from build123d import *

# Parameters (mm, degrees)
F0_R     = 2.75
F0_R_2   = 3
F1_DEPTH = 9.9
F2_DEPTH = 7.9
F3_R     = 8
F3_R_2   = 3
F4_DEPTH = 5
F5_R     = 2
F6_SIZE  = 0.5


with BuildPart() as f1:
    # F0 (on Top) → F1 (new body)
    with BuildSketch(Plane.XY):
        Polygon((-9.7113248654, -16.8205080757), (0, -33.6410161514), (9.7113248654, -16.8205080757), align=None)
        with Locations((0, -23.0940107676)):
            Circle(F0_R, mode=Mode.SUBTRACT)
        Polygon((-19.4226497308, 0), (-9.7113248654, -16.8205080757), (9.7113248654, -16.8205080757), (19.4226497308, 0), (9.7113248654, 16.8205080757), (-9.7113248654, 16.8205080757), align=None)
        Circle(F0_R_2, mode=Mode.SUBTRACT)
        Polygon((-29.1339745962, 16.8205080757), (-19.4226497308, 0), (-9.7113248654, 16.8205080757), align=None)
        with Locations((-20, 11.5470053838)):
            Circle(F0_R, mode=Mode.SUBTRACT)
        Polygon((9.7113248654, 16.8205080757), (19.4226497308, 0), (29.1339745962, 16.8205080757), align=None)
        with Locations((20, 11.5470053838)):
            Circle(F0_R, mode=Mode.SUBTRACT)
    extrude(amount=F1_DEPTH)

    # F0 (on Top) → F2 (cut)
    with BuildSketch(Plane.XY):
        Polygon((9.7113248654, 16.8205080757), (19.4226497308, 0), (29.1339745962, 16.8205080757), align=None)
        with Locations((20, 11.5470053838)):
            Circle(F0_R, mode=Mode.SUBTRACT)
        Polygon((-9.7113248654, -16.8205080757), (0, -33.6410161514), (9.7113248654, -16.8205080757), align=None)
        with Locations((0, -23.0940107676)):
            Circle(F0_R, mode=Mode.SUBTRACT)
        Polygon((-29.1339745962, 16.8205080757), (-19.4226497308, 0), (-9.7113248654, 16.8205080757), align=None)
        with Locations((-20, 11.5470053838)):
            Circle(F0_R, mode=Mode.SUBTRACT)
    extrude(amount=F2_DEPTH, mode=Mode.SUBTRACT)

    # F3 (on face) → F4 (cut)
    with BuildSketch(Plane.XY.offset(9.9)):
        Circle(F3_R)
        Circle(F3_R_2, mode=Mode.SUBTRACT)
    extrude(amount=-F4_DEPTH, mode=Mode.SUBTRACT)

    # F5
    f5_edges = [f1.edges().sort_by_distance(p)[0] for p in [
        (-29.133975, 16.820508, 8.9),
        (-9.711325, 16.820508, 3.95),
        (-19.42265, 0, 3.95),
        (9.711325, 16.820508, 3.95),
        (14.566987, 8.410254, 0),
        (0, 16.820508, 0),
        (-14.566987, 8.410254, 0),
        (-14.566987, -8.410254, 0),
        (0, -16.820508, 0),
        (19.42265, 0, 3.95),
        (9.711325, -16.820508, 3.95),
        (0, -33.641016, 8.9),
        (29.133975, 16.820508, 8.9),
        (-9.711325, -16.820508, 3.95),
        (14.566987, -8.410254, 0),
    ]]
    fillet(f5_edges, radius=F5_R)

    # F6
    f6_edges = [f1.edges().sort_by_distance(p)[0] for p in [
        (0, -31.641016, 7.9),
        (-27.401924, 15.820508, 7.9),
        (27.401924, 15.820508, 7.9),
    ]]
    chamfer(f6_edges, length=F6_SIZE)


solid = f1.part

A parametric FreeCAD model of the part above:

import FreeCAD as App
import Part
import Sketcher

V = App.Vector
Q = App.Units.Quantity


def edges_at(feature, points):
    """Names of the edges that pass closest to the given points."""
    edges = feature.Shape.Edges
    near = lambda p: min(range(len(edges)), key=lambda i: edges[i].distToShape(Part.Vertex(*p))[0])
    return sorted({f"Edge{near(p) + 1}" for p in points})


def add_polygon(sketch, points):
    """Adds a closed chain of lines whose ends are joined by coincident constraints."""
    first, n = sketch.GeometryCount, len(points)
    for a, b in zip(points, points[1:] + points[:1]):
        sketch.addGeometry(Part.LineSegment(App.Vector(*a, 0), App.Vector(*b, 0)), False)
    for i in range(n):
        sketch.addConstraint(Sketcher.Constraint("Coincident", first + i, 2, first + (i + 1) % n, 1))

doc = App.newDocument("Part")
params = doc.addObject("Spreadsheet::Sheet", "Params")
for row, (alias, value) in enumerate([
    ("sketch1_diameter", "6 mm"),
    ("sketch1_diameter2", "5.5 mm"),
    ("pad1_length", "9.9 mm"),
    ("sketch2_diameter", "5.5 mm"),
    ("pocket1_length", "7.9 mm"),
    ("sketch3_diameter", "16 mm"),
    ("sketch3_diameter2", "6 mm"),
    ("pocket2_length", "5 mm"),
    ("fillet_radius", "2 mm"),
    ("chamfer_size", "0.5 mm"),
], start=1):
    params.set(f"A{row}", alias)
    params.set(f"B{row}", "=" + value)
    params.setAlias(f"B{row}", alias)

body = doc.addObject("PartDesign::Body", "Body")

# Sketch on XY plane
sketch1 = body.newObject("Sketcher::SketchObject", "Sketch")
sketch1.AttachmentSupport = (doc.getObject("XY_Plane"), [""])
sketch1.MapMode = "FlatFace"
add_polygon(sketch1, [(0, -33.6), (29.1, 16.8), (-29.1, 16.8)])  # lines 0-2
sketch1.addGeometry(Part.Circle(V(0, -23.1, 0), V(0, 0, 1), 2.8), False)  # 3
sketch1.addGeometry(Part.Circle(V(-20, 11.5, 0), V(0, 0, 1), 2.8), False)  # 4
sketch1.addGeometry(Part.Circle(V(0, 0, 0), V(0, 0, 1), 3), False)  # 5
sketch1.addGeometry(Part.Circle(V(20, 11.5, 0), V(0, 0, 1), 2.8), False)  # 6
sketch1.addConstraint(Sketcher.Constraint("Horizontal", 1))
sketch1.addConstraint(Sketcher.Constraint("Coincident", 5, 3, -1, 1))
sketch1.addConstraint(Sketcher.Constraint("Equal", 3, 4))
sketch1.addConstraint(Sketcher.Constraint("Equal", 4, 6))
sketch1.addConstraint(Sketcher.Constraint("Symmetric", 4, 3, 6, 3, -2))
sketch1.addConstraint(Sketcher.Constraint("PointOnObject", 3, 3, -2))
sketch1.addConstraint(Sketcher.Constraint("PointOnObject", 2, 2, -2))
sketch1.addConstraint(Sketcher.Constraint("Equal", 0, 2))
sketch1.addConstraint(Sketcher.Constraint("Diameter", 5, Q("6 mm")))
sketch1.addConstraint(Sketcher.Constraint("Diameter", 3, Q("5.5 mm")))
sketch1.addConstraint(Sketcher.Constraint("Angle", 0, Q("60 deg")))
sketch1.addConstraint(Sketcher.Constraint("DistanceX", 4, 3, -1, 1, Q("20 mm")))
sketch1.addConstraint(Sketcher.Constraint("DistanceX", 1, 2, 1, 1, Q("58.267949 mm")))
sketch1.addConstraint(Sketcher.Constraint("DistanceY", 3, 3, -1, 1, Q("23.094011 mm")))
sketch1.addConstraint(Sketcher.Constraint("DistanceY", -1, 1, 0, 2, Q("16.820508 mm")))
sketch1.addConstraint(Sketcher.Constraint("DistanceY", 2, 2, 4, 3, Q("45.188022 mm")))
sketch1.setExpression("Constraints[11]", "Params.sketch1_diameter")
sketch1.setExpression("Constraints[12]", "Params.sketch1_diameter2")
pad1 = body.newObject("PartDesign::Pad", "Pad")
pad1.Profile = sketch1
pad1.setExpression("Length", "Params.pad1_length")

# Sketch on XY plane
sketch2 = body.newObject("Sketcher::SketchObject", "Sketch001")
sketch2.AttachmentSupport = (doc.getObject("XY_Plane"), [""])
sketch2.MapMode = "FlatFace"
add_polygon(sketch2, [(9.7, 16.8), (19.4, 0), (29.1, 16.8)])  # lines 0-2
sketch2.addGeometry(Part.Circle(V(20, 11.5, 0), V(0, 0, 1), 2.8), False)  # 3
add_polygon(sketch2, [(-9.7, -16.8), (0, -33.6), (9.7, -16.8)])  # lines 4-6
sketch2.addGeometry(Part.Circle(V(0, -23.1, 0), V(0, 0, 1), 2.8), False)  # 7
add_polygon(sketch2, [(-29.1, 16.8), (-19.4, 0), (-9.7, 16.8)])  # lines 8-10
sketch2.addGeometry(Part.Circle(V(-20, 11.5, 0), V(0, 0, 1), 2.8), False)  # 11
sketch2.addConstraint(Sketcher.Constraint("Horizontal", 2))
sketch2.addConstraint(Sketcher.Constraint("Horizontal", 6))
sketch2.addConstraint(Sketcher.Constraint("Horizontal", 10))
sketch2.addConstraint(Sketcher.Constraint("Equal", 3, 7))
sketch2.addConstraint(Sketcher.Constraint("Equal", 7, 11))
sketch2.addConstraint(Sketcher.Constraint("Symmetric", 2, 2, 6, 2, -1, 1))
sketch2.addConstraint(Sketcher.Constraint("Symmetric", 0, 2, 8, 2, -1, 1))
sketch2.addConstraint(Sketcher.Constraint("Symmetric", 5, 2, 9, 2, -1, 1))
sketch2.addConstraint(Sketcher.Constraint("Symmetric", 3, 3, 11, 3, -2))
sketch2.addConstraint(Sketcher.Constraint("PointOnObject", 7, 3, -2))
sketch2.addConstraint(Sketcher.Constraint("PointOnObject", 0, 2, -1))
sketch2.addConstraint(Sketcher.Constraint("PointOnObject", 4, 2, -2))
sketch2.addConstraint(Sketcher.Constraint("Parallel", 0, 4))
sketch2.addConstraint(Sketcher.Constraint("Parallel", 1, 5))
sketch2.addConstraint(Sketcher.Constraint("Parallel", 4, 8))
sketch2.addConstraint(Sketcher.Constraint("Parallel", 5, 9))
sketch2.addConstraint(Sketcher.Constraint("Equal", 2, 6))
sketch2.addConstraint(Sketcher.Constraint("Diameter", 3, Q("5.5 mm")))
sketch2.addConstraint(Sketcher.Constraint("Angle", 0, Q("-60 deg")))
sketch2.addConstraint(Sketcher.Constraint("DistanceX", -1, 1, 3, 3, Q("20 mm")))
sketch2.addConstraint(Sketcher.Constraint("DistanceX", 2, 2, 2, 1, Q("19.42265 mm")))
sketch2.addConstraint(Sketcher.Constraint("DistanceY", 7, 3, -1, 1, Q("23.094011 mm")))
sketch2.addConstraint(Sketcher.Constraint("DistanceY", 4, 2, 3, 3, Q("45.188022 mm")))
sketch2.setExpression("Constraints[26]", "Params.sketch2_diameter")
pocket1 = body.newObject("PartDesign::Pocket", "Pocket")
pocket1.Profile = sketch2
pocket1.setExpression("Length", "Params.pocket1_length")
pocket1.Reversed = True

# Sketch on XY plane
sketch3 = body.newObject("Sketcher::SketchObject", "Sketch002")
sketch3.AttachmentSupport = (doc.getObject("XY_Plane"), [""])
sketch3.MapMode = "FlatFace"
sketch3.AttachmentOffset = App.Placement(V(0, 0, 9.9), App.Rotation())
sketch3.addGeometry(Part.Circle(V(0, 0, 0), V(0, 0, 1), 8), False)
sketch3.addGeometry(Part.Circle(V(0, 0, 0), V(0, 0, 1), 3), False)
sketch3.addConstraint(Sketcher.Constraint("Coincident", 0, 3, -1, 1))
sketch3.addConstraint(Sketcher.Constraint("Coincident", 1, 3, -1, 1))
sketch3.addConstraint(Sketcher.Constraint("Diameter", 0, Q("16 mm")))
sketch3.addConstraint(Sketcher.Constraint("Diameter", 1, Q("6 mm")))
sketch3.setExpression("Constraints[2]", "Params.sketch3_diameter")
sketch3.setExpression("Constraints[3]", "Params.sketch3_diameter2")
pocket2 = body.newObject("PartDesign::Pocket", "Pocket001")
pocket2.Profile = sketch3
pocket2.setExpression("Length", "Params.pocket2_length")
doc.recompute()

fillet = body.newObject("PartDesign::Fillet", "Fillet")
fillet.Base = (pocket2, edges_at(pocket2, [
    (-29.134, 16.821, 8.9),
    (-9.711, 16.821, 3.95),
    (-19.423, 0, 3.95),
    (9.711, 16.821, 3.95),
    (14.567, 8.41, 0),
    (0, 16.821, 0),
    (-14.567, 8.41, 0),
    (-14.567, -8.41, 0),
    (0, -16.821, 0),
    (19.423, 0, 3.95),
    (9.711, -16.821, 3.95),
    (0, -33.641, 8.9),
    (29.134, 16.821, 8.9),
    (-9.711, -16.821, 3.95),
    (14.567, -8.41, 0),
]))
fillet.setExpression("Radius", "Params.fillet_radius")
doc.recompute()

chamfer = body.newObject("PartDesign::Chamfer", "Chamfer")
chamfer.Base = (fillet, edges_at(fillet, [(0, -31.641, 7.9), (-27.402, 15.821, 7.9), (27.402, 15.821, 7.9)]))
chamfer.setExpression("Size", "Params.chamfer_size")

doc.recompute()
